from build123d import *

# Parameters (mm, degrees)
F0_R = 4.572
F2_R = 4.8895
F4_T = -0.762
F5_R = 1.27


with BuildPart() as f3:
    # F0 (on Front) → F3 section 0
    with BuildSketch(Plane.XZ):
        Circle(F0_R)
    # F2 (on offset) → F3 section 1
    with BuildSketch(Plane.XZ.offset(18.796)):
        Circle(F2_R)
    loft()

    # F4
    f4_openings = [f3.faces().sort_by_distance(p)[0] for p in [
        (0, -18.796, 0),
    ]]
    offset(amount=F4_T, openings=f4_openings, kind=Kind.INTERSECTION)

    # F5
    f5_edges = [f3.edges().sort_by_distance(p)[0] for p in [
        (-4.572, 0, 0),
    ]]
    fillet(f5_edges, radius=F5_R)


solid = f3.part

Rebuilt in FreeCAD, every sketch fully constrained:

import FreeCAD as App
import Part
import Sketcher
Q = App.Units.Quantity


def edges_at(feature, points):
    """Names of the edges that pass closest to the given points."""
    edges = feature.Shape.Edges
    near = lambda p: min(range(len(edges)), key=lambda i: edges[i].distToShape(Part.Vertex(*p))[0])
    return sorted({f"Edge{near(p) + 1}" for p in points})


def faces_at(feature, points):
    """Names of the faces that lie closest to the given points."""
    faces = feature.Shape.Faces
    near = lambda p: min(range(len(faces)), key=lambda i: faces[i].distToShape(Part.Vertex(*p))[0])
    return sorted({f"Face{near(p) + 1}" for p in points})

doc = App.newDocument("Part")
body = doc.addObject("PartDesign::Body", "Body")

# Sketch on XZ plane
sketch1 = body.newObject("Sketcher::SketchObject", "Sketch")
sketch1.AttachmentSupport = (doc.getObject("XZ_Plane"), [""])
sketch1.MapMode = "FlatFace"
sketch1.addGeometry(Part.Circle(App.Vector(0, 0, 0), App.Vector(0, 0, 1), 4.572), False)
sketch1.addConstraint(Sketcher.Constraint("Coincident", 0, 3, -1, 1))
sketch1.addConstraint(Sketcher.Constraint("Diameter", 0, Q("0.36 in")))

# Sketch on XZ plane
sketch2 = body.newObject("Sketcher::SketchObject", "Sketch001")
sketch2.AttachmentSupport = (doc.getObject("XZ_Plane"), [""])
sketch2.MapMode = "FlatFace"
sketch2.AttachmentOffset = App.Placement(App.Vector(0, 0, 0.74 * 25.4), App.Rotation())
sketch2.addGeometry(Part.Circle(App.Vector(0, 0, 0), App.Vector(0, 0, 1), 4.8895), False)
sketch2.addConstraint(Sketcher.Constraint("Coincident", 0, 3, -1, 1))
sketch2.addConstraint(Sketcher.Constraint("Diameter", 0, Q("0.385 in")))

additiveloft = body.newObject("PartDesign::AdditiveLoft", "AdditiveLoft")
additiveloft.Profile = sketch1
additiveloft.Sections = [sketch2]
doc.recompute()

thickness = body.newObject("PartDesign::Thickness", "Thickness")
thickness.Base = (additiveloft, faces_at(additiveloft, [(0, -18.796, 0)]))
thickness.Value = Q("0.03 in")
thickness.Reversed = True
thickness.Join = "Intersection"
doc.recompute()

fillet = body.newObject("PartDesign::Fillet", "Fillet")
fillet.Base = (thickness, edges_at(thickness, [(-4.572, 0, 0)]))
fillet.Radius = Q("0.05 in")

doc.recompute()
